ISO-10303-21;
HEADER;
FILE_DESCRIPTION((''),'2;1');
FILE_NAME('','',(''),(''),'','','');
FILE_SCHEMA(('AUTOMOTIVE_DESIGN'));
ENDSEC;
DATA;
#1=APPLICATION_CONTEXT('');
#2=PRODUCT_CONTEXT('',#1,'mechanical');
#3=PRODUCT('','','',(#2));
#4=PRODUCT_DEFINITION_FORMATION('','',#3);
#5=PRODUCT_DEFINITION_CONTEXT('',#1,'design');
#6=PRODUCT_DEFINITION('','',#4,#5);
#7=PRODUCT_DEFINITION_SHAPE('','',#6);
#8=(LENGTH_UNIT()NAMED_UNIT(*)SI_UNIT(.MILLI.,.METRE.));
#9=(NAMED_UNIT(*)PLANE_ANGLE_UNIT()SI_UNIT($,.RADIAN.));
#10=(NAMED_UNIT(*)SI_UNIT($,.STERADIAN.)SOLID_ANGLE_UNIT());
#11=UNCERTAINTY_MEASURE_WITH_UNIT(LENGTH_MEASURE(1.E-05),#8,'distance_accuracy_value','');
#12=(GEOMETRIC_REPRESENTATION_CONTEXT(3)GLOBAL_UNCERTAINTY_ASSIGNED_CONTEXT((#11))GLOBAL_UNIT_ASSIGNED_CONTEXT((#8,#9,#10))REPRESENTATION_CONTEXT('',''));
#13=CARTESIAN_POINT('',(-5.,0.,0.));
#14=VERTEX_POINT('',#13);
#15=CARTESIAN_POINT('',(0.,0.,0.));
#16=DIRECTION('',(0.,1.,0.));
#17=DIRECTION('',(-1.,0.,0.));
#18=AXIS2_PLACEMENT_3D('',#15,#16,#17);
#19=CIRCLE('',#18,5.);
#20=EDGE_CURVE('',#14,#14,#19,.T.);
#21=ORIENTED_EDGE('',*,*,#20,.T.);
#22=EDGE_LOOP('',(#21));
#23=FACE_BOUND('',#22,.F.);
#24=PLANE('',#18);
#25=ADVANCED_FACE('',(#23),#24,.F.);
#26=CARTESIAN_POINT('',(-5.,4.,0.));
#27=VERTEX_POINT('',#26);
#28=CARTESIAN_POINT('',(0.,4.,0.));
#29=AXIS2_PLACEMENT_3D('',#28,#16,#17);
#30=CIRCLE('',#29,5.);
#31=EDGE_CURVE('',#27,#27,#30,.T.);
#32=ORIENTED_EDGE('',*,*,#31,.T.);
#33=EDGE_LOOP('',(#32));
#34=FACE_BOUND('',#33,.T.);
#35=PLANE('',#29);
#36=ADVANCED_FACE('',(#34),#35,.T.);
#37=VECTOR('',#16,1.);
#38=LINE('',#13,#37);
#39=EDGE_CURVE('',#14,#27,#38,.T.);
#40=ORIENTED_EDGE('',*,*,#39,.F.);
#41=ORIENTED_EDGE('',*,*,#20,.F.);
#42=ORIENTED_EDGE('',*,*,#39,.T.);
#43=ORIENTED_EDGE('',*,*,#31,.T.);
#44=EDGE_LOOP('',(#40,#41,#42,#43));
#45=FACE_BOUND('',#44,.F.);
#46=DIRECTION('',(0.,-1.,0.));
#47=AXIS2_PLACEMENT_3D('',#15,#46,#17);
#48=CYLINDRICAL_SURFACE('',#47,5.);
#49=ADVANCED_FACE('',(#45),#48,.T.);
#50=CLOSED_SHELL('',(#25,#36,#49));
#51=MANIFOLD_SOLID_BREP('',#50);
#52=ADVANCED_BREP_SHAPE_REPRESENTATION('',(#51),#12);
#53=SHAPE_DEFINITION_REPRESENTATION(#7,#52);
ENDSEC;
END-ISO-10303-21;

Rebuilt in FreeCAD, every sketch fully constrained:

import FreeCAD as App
import Part
import Sketcher

doc = App.newDocument("Part")
body = doc.addObject("PartDesign::Body", "Body")

# Sketch on XZ plane
sketch1 = body.newObject("Sketcher::SketchObject", "Sketch")
sketch1.AttachmentSupport = (doc.getObject("XZ_Plane"), [""])
sketch1.MapMode = "FlatFace"
sketch1.addGeometry(Part.Circle(App.Vector(0, 0, 0), App.Vector(0, 0, 1), 5), False)
sketch1.addConstraint([
    Sketcher.Constraint("Coincident", 0, 3, -1, 1),
    Sketcher.Constraint("Diameter", 0, 10.0),
])
pad1 = body.newObject("PartDesign::Pad", "Pad")
pad1.Profile = sketch1
pad1.Length = 4
pad1.Reversed = True

doc.recompute()
